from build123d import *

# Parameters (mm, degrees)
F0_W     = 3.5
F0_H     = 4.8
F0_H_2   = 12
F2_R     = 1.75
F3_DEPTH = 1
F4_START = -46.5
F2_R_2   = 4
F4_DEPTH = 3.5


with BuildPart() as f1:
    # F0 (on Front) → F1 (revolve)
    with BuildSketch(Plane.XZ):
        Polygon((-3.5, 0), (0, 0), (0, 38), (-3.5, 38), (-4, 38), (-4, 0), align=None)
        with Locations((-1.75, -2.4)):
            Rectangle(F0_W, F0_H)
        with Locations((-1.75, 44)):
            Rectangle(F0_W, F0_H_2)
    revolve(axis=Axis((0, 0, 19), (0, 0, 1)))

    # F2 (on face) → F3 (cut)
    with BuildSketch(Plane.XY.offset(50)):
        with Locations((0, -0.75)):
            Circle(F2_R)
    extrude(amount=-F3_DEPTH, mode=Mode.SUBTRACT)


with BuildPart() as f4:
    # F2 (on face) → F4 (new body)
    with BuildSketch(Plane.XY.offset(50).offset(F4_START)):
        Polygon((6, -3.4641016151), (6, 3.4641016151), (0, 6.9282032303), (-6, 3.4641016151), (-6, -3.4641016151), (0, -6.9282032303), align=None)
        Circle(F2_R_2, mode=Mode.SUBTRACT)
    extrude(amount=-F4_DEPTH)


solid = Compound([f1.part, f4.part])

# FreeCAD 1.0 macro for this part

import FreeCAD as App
import Part
import Sketcher

V = App.Vector
Q = App.Units.Quantity

doc = App.newDocument("Part")
body = doc.addObject("PartDesign::Body", "Body")

sketch1 = body.newObject("Sketcher::SketchObject", "Sketch")
sketch1.AttachmentSupport = (doc.getObject("XZ_Plane"), [""])
sketch1.MapMode = "FlatFace"
sketch1.addGeometry(Part.LineSegment(V(-3.5, 38, 0), V(-4, 38, 0)), False)
sketch1.addGeometry(Part.LineSegment(V(-4, 38, 0), V(-4, 0, 0)), False)
sketch1.addGeometry(Part.LineSegment(V(-4, 0, 0), V(-3.5, 0, 0)), False)
sketch1.addGeometry(Part.LineSegment(V(-3.5, 0, 0), V(-3.5, -4.8, 0)), False)
sketch1.addGeometry(Part.LineSegment(V(-3.5, -4.8, 0), V(0, -4.8, 0)), False)
sketch1.addGeometry(Part.LineSegment(V(0, -4.8, 0), V(0, 50, 0)), False)
sketch1.addGeometry(Part.LineSegment(V(0, 50, 0), V(-3.5, 50, 0)), False)
sketch1.addGeometry(Part.LineSegment(V(-3.5, 50, 0), V(-3.5, 38, 0)), False)
sketch1.addConstraint(Sketcher.Constraint("Coincident", 0, 2, 1, 1))
sketch1.addConstraint(Sketcher.Constraint("Coincident", 1, 2, 2, 1))
sketch1.addConstraint(Sketcher.Constraint("Coincident", 2, 2, 3, 1))
sketch1.addConstraint(Sketcher.Constraint("Coincident", 3, 2, 4, 1))
sketch1.addConstraint(Sketcher.Constraint("Coincident", 4, 2, 5, 1))
sketch1.addConstraint(Sketcher.Constraint("Coincident", 5, 2, 6, 1))
sketch1.addConstraint(Sketcher.Constraint("Coincident", 6, 2, 7, 1))
sketch1.addConstraint(Sketcher.Constraint("Coincident", 7, 2, 0, 1))
sketch1.addConstraint(Sketcher.Constraint("Horizontal", 0))
sketch1.addConstraint(Sketcher.Constraint("Vertical", 1))
sketch1.addConstraint(Sketcher.Constraint("Horizontal", 2))
sketch1.addConstraint(Sketcher.Constraint("Vertical", 3))
sketch1.addConstraint(Sketcher.Constraint("Horizontal", 4))
sketch1.addConstraint(Sketcher.Constraint("Vertical", 5))
sketch1.addConstraint(Sketcher.Constraint("Horizontal", 6))
sketch1.addConstraint(Sketcher.Constraint("Vertical", 7))
sketch1.addConstraint(Sketcher.Constraint("PointOnObject", 1, 2, -1))
sketch1.addConstraint(Sketcher.Constraint("PointOnObject", 4, 2, -2))
sketch1.addConstraint(Sketcher.Constraint("Vertical", 3, 2, 6, 2))
sketch1.addConstraint(Sketcher.Constraint("DistanceY", 1, 2, 1, 1, Q("38 mm")))
sketch1.addConstraint(Sketcher.Constraint("DistanceY", 7, 2, 7, 1, Q("12 mm")))
sketch1.addConstraint(Sketcher.Constraint("DistanceX", 0, 2, 0, 1, Q("0.5 mm")))
sketch1.addConstraint(Sketcher.Constraint("DistanceX", 4, 1, 4, 2, Q("3.5 mm")))
sketch1.addConstraint(Sketcher.Constraint("DistanceY", 3, 2, 3, 1, Q("4.8 mm")))
revolution = body.newObject("PartDesign::Revolution", "Revolution")
revolution.Profile = sketch1
revolution.ReferenceAxis = (sketch1, ["V_Axis"])
revolution.Angle = 360

sketch2 = body.newObject("Sketcher::SketchObject", "Sketch001")
sketch2.AttachmentSupport = (doc.getObject("XY_Plane"), [""])
sketch2.MapMode = "FlatFace"
sketch2.AttachmentOffset = App.Placement(V(0, 0, 50), App.Rotation())
sketch2.addGeometry(Part.Circle(V(0, -0.75, 0), V(0, 0, 1), 1.75), False)
sketch2.addConstraint(Sketcher.Constraint("PointOnObject", 0, 3, -2))
sketch2.addConstraint(Sketcher.Constraint("Diameter", 0, Q("3.5 mm")))
sketch2.addConstraint(Sketcher.Constraint("DistanceY", 0, 3, -1, 1, Q("0.75 mm")))
pocket1 = body.newObject("PartDesign::Pocket", "Pocket")
pocket1.Profile = sketch2
pocket1.Length = 1
body2 = doc.addObject("PartDesign::Body", "Body001")

sketch3 = body2.newObject("Sketcher::SketchObject", "Sketch002")
sketch3.AttachmentSupport = (doc.getObject("XY_Plane001"), [""])
sketch3.MapMode = "FlatFace"
sketch3.AttachmentOffset = App.Placement(V(0, 0, 3.5), App.Rotation())
sketch3.addGeometry(Part.LineSegment(V(6, -3.464102, 0), V(6, 3.464102, 0)), False)
sketch3.addGeometry(Part.LineSegment(V(6, 3.464102, 0), V(0, 6.928203, 0)), False)
sketch3.addGeometry(Part.LineSegment(V(0, 6.928203, 0), V(-6, 3.464102, 0)), False)
sketch3.addGeometry(Part.LineSegment(V(-6, 3.464102, 0), V(-6, -3.464102, 0)), False)
sketch3.addGeometry(Part.LineSegment(V(-6, -3.464102, 0), V(0, -6.928203, 0)), False)
sketch3.addGeometry(Part.LineSegment(V(0, -6.928203, 0), V(6, -3.464102, 0)), False)
sketch3.addGeometry(Part.Circle(V(0, 0, 0), V(0, 0, 1), 4), False)
sketch3.addConstraint(Sketcher.Constraint("Coincident", 0, 2, 1, 1))
sketch3.addConstraint(Sketcher.Constraint("Coincident", 1, 2, 2, 1))
sketch3.addConstraint(Sketcher.Constraint("Coincident", 2, 2, 3, 1))
sketch3.addConstraint(Sketcher.Constraint("Coincident", 3, 2, 4, 1))
sketch3.addConstraint(Sketcher.Constraint("Coincident", 4, 2, 5, 1))
sketch3.addConstraint(Sketcher.Constraint("Coincident", 5, 2, 0, 1))
sketch3.addConstraint(Sketcher.Constraint("Vertical", 0))
sketch3.addConstraint(Sketcher.Constraint("Vertical", 3))
sketch3.addConstraint(Sketcher.Constraint("Coincident", 6, 3, -1, 1))
sketch3.addConstraint(Sketcher.Constraint("Symmetric", 0, 2, 3, 2, -1, 1))
sketch3.addConstraint(Sketcher.Constraint("Symmetric", 1, 2, 4, 2, -1, 1))
sketch3.addConstraint(Sketcher.Constraint("PointOnObject", 1, 2, -2))
sketch3.addConstraint(Sketcher.Constraint("Parallel", 2, 5))
sketch3.addConstraint(Sketcher.Constraint("Horizontal", 0, 2, 2, 2))
sketch3.addConstraint(Sketcher.Constraint("Diameter", 6, Q("8 mm")))
sketch3.addConstraint(Sketcher.Constraint("Angle", 1, Q("150 deg")))
sketch3.addConstraint(Sketcher.Constraint("DistanceX", -1, 1, 0, 2, Q("6 mm")))
sketch3.addConstraint(Sketcher.Constraint("DistanceY", -1, 1, 0, 2, Q("3.464102 mm")))
pad1 = body2.newObject("PartDesign::Pad", "Pad")
pad1.Profile = sketch3
pad1.Length = 3.5
pad1.Reversed = True

doc.recompute()
